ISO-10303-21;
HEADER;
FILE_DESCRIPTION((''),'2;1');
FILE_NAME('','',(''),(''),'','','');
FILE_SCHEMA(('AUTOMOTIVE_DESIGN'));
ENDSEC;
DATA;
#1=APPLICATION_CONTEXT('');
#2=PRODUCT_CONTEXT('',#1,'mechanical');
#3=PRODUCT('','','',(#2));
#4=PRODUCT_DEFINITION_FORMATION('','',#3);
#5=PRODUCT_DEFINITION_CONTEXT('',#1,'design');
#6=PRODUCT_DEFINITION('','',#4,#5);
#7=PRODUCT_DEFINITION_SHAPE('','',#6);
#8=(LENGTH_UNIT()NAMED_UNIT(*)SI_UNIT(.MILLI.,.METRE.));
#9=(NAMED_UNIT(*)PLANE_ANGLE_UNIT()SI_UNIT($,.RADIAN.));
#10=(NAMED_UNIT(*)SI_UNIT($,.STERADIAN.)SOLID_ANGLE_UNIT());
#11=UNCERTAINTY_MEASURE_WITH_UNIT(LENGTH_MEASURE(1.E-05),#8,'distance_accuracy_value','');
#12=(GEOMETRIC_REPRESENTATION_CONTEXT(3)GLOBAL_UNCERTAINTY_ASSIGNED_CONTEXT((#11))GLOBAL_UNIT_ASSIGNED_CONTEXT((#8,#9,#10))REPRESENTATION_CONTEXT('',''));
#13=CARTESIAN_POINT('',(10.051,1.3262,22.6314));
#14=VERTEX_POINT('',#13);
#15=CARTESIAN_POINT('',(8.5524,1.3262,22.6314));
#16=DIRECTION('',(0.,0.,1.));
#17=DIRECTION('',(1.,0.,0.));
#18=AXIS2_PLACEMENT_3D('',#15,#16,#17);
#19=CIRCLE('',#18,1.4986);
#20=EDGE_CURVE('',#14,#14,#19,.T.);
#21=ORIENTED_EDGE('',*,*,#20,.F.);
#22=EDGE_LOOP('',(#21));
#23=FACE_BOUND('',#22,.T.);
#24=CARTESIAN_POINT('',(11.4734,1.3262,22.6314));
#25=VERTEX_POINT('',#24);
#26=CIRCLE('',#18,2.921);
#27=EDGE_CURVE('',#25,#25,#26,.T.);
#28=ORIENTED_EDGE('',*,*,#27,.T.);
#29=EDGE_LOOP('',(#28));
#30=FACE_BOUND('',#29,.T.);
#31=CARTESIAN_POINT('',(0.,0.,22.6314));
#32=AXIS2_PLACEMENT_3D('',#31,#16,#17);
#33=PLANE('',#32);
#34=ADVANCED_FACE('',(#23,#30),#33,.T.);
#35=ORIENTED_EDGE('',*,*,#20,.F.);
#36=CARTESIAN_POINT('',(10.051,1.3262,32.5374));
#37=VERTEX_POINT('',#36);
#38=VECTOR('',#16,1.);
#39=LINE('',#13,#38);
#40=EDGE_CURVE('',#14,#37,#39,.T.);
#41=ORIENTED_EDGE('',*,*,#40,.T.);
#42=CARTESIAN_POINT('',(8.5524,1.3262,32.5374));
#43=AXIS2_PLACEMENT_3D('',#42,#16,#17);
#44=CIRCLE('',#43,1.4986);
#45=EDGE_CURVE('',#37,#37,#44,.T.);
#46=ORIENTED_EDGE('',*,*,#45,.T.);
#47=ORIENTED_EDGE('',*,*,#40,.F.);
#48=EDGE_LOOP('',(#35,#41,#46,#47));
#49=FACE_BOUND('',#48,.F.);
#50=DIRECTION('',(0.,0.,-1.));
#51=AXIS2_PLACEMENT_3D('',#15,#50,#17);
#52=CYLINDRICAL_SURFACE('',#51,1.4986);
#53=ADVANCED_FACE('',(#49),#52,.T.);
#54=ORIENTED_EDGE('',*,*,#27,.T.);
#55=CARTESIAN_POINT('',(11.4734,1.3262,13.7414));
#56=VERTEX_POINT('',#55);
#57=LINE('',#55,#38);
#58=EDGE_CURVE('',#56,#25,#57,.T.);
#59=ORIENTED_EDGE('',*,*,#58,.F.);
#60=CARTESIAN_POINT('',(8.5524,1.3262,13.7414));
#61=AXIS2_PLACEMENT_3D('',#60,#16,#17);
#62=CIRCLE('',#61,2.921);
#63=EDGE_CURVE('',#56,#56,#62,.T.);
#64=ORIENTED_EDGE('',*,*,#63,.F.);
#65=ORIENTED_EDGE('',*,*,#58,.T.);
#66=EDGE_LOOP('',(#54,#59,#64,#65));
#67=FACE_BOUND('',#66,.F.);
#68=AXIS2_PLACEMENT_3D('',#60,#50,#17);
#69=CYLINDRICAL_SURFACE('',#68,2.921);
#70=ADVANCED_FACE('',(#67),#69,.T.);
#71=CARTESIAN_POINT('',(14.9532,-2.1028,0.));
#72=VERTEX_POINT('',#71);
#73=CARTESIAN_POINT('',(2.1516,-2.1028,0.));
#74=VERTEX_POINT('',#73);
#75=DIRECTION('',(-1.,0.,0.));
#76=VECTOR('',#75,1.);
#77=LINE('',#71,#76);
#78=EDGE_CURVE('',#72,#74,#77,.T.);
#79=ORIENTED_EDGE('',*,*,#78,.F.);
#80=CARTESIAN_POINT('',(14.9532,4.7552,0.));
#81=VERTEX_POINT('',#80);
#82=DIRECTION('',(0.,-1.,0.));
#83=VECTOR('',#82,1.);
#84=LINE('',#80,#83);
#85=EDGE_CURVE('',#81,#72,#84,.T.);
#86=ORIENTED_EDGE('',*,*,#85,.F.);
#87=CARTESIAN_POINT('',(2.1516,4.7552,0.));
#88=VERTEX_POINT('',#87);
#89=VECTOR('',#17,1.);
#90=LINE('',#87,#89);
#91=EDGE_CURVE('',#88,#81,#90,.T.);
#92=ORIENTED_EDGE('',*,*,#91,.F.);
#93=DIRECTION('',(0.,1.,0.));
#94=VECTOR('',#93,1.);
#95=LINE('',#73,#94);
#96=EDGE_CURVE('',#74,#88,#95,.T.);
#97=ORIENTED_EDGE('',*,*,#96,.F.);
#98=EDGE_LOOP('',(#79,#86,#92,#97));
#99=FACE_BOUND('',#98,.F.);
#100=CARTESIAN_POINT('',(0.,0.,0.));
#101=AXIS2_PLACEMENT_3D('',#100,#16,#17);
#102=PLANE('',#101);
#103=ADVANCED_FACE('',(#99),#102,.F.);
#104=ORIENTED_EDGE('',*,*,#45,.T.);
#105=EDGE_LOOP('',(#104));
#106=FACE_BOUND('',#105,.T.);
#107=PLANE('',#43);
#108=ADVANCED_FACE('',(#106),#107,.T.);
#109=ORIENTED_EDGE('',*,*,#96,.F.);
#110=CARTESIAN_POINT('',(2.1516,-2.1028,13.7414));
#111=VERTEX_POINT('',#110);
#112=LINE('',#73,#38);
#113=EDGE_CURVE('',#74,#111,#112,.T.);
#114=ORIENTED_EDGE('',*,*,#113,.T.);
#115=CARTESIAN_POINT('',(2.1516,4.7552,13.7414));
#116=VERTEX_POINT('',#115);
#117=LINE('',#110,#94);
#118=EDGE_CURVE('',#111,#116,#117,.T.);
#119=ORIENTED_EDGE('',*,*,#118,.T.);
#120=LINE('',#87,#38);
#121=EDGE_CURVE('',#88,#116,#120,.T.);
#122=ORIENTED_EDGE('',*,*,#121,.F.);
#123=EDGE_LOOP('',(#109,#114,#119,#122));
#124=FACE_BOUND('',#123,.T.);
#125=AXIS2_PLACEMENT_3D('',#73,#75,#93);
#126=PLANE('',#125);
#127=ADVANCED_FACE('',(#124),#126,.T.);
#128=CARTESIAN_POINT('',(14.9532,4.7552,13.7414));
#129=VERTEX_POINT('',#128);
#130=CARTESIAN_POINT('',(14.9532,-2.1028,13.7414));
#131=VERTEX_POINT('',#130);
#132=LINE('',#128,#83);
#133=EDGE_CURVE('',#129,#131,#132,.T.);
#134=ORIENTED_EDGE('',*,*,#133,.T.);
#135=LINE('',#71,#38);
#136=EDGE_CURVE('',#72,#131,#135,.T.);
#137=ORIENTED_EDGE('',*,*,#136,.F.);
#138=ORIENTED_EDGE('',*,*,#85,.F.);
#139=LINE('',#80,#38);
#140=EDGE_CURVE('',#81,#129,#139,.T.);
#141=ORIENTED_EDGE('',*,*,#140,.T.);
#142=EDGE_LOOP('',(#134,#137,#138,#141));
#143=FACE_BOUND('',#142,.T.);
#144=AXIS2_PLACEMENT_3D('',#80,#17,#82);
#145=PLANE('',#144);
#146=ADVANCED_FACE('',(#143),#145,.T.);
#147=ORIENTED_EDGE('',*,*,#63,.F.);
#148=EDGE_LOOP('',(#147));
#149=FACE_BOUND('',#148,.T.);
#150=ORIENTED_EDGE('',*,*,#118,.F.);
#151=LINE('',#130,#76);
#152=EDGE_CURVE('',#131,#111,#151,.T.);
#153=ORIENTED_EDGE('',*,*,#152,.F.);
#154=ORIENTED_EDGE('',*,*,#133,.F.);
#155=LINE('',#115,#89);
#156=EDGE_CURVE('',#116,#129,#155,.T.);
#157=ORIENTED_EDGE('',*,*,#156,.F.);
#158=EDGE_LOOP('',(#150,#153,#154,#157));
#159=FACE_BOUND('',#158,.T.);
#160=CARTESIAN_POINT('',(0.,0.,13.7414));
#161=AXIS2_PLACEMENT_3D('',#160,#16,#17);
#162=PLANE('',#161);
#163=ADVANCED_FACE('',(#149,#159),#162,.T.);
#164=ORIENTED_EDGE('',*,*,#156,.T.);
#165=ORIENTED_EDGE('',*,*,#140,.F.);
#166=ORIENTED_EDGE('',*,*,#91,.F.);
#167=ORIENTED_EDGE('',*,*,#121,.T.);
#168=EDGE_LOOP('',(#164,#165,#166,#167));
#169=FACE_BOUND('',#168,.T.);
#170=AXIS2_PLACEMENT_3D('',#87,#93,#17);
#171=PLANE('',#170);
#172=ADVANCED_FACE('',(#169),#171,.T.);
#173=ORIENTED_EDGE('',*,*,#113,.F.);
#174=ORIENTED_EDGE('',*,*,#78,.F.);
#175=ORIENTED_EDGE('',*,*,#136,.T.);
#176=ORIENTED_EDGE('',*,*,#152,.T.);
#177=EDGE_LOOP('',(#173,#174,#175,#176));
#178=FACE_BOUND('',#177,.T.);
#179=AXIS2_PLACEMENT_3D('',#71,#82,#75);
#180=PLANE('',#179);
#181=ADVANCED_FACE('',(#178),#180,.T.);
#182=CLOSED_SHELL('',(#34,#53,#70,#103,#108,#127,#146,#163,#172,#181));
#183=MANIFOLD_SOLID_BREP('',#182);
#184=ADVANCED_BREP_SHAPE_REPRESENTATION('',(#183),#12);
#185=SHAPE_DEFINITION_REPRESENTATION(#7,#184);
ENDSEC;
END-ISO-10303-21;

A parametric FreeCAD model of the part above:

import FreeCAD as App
import Part
import Sketcher
from FreeCAD import Vector
Q = App.Units.Quantity

doc = App.newDocument("Part")
body = doc.addObject("PartDesign::Body", "Body")

# Sketch on XY plane
sketch1 = body.newObject("Sketcher::SketchObject", "Sketch")
sketch1.AttachmentSupport = (doc.getObject("XY_Plane"), [""])
sketch1.MapMode = "FlatFace"
sketch1.addGeometry([
    Part.LineSegment(Vector(14.9532, 4.7552, 0), Vector(2.1516, 4.7552, 0)),
    Part.LineSegment(Vector(2.1516, 4.7552, 0), Vector(2.1516, -2.1028, 0)),
    Part.LineSegment(Vector(2.1516, -2.1028, 0), Vector(14.9532, -2.1028, 0)),
    Part.LineSegment(Vector(14.9532, -2.1028, 0), Vector(14.9532, 4.7552, 0)),
], False)
sketch1.addConstraint([
    Sketcher.Constraint("Coincident", 0, 2, 1, 1),
    Sketcher.Constraint("Coincident", 1, 2, 2, 1),
    Sketcher.Constraint("Coincident", 2, 2, 3, 1),
    Sketcher.Constraint("Coincident", 3, 2, 0, 1),
    Sketcher.Constraint("Horizontal", 0),
    Sketcher.Constraint("Vertical", 1),
    Sketcher.Constraint("Horizontal", 2),
    Sketcher.Constraint("Vertical", 3),
    Sketcher.Constraint("DistanceY", 1, 2, 1, 1, Q("0.27 in")),
    Sketcher.Constraint("DistanceX", 0, 2, 0, 1, Q("0.504 in")),
    Sketcher.Constraint("DistanceX", -1, 1, 0, 2, Q("0.0847 in")),
    Sketcher.Constraint("DistanceY", -1, 1, 0, 2, 4.7552),
])
pad1 = body.newObject("PartDesign::Pad", "Pad")
pad1.Profile = sketch1
pad1.Length = Q("0.541 in")

# Sketch on XY plane
sketch2 = body.newObject("Sketcher::SketchObject", "Sketch001")
sketch2.AttachmentSupport = (doc.getObject("XY_Plane"), [""])
sketch2.MapMode = "FlatFace"
sketch2.AttachmentOffset = App.Placement(Vector(0, 0, 0.541 * 25.4), App.Rotation())
sketch2.addGeometry(Part.Circle(Vector(8.5524, 1.3262, 0), Vector(0, 0, 1), 2.921), False)
sketch2.addConstraint([
    Sketcher.Constraint("Diameter", 0, Q("0.23 in")),
    Sketcher.Constraint("DistanceX", -1, 1, 0, 3, Q("0.3367 in")),
    Sketcher.Constraint("DistanceY", -1, 1, 0, 3, 1.3262),
])
pad2 = body.newObject("PartDesign::Pad", "Pad001")
pad2.Profile = sketch2
pad2.Length = Q("0.35 in")

# Sketch on XY plane
sketch3 = body.newObject("Sketcher::SketchObject", "Sketch002")
sketch3.AttachmentSupport = (doc.getObject("XY_Plane"), [""])
sketch3.MapMode = "FlatFace"
sketch3.AttachmentOffset = App.Placement(Vector(0, 0, 0.891 * 25.4), App.Rotation())
sketch3.addGeometry(Part.Circle(Vector(8.5524, 1.3262, 0), Vector(0, 0, 1), 1.4986), False)
sketch3.addConstraint([
    Sketcher.Constraint("Diameter", 0, Q("0.118 in")),
    Sketcher.Constraint("DistanceX", -1, 1, 0, 3, Q("0.3367 in")),
    Sketcher.Constraint("DistanceY", -1, 1, 0, 3, 1.3262),
])
pad3 = body.newObject("PartDesign::Pad", "Pad002")
pad3.Profile = sketch3
pad3.Length = Q("0.39 in")

doc.recompute()
